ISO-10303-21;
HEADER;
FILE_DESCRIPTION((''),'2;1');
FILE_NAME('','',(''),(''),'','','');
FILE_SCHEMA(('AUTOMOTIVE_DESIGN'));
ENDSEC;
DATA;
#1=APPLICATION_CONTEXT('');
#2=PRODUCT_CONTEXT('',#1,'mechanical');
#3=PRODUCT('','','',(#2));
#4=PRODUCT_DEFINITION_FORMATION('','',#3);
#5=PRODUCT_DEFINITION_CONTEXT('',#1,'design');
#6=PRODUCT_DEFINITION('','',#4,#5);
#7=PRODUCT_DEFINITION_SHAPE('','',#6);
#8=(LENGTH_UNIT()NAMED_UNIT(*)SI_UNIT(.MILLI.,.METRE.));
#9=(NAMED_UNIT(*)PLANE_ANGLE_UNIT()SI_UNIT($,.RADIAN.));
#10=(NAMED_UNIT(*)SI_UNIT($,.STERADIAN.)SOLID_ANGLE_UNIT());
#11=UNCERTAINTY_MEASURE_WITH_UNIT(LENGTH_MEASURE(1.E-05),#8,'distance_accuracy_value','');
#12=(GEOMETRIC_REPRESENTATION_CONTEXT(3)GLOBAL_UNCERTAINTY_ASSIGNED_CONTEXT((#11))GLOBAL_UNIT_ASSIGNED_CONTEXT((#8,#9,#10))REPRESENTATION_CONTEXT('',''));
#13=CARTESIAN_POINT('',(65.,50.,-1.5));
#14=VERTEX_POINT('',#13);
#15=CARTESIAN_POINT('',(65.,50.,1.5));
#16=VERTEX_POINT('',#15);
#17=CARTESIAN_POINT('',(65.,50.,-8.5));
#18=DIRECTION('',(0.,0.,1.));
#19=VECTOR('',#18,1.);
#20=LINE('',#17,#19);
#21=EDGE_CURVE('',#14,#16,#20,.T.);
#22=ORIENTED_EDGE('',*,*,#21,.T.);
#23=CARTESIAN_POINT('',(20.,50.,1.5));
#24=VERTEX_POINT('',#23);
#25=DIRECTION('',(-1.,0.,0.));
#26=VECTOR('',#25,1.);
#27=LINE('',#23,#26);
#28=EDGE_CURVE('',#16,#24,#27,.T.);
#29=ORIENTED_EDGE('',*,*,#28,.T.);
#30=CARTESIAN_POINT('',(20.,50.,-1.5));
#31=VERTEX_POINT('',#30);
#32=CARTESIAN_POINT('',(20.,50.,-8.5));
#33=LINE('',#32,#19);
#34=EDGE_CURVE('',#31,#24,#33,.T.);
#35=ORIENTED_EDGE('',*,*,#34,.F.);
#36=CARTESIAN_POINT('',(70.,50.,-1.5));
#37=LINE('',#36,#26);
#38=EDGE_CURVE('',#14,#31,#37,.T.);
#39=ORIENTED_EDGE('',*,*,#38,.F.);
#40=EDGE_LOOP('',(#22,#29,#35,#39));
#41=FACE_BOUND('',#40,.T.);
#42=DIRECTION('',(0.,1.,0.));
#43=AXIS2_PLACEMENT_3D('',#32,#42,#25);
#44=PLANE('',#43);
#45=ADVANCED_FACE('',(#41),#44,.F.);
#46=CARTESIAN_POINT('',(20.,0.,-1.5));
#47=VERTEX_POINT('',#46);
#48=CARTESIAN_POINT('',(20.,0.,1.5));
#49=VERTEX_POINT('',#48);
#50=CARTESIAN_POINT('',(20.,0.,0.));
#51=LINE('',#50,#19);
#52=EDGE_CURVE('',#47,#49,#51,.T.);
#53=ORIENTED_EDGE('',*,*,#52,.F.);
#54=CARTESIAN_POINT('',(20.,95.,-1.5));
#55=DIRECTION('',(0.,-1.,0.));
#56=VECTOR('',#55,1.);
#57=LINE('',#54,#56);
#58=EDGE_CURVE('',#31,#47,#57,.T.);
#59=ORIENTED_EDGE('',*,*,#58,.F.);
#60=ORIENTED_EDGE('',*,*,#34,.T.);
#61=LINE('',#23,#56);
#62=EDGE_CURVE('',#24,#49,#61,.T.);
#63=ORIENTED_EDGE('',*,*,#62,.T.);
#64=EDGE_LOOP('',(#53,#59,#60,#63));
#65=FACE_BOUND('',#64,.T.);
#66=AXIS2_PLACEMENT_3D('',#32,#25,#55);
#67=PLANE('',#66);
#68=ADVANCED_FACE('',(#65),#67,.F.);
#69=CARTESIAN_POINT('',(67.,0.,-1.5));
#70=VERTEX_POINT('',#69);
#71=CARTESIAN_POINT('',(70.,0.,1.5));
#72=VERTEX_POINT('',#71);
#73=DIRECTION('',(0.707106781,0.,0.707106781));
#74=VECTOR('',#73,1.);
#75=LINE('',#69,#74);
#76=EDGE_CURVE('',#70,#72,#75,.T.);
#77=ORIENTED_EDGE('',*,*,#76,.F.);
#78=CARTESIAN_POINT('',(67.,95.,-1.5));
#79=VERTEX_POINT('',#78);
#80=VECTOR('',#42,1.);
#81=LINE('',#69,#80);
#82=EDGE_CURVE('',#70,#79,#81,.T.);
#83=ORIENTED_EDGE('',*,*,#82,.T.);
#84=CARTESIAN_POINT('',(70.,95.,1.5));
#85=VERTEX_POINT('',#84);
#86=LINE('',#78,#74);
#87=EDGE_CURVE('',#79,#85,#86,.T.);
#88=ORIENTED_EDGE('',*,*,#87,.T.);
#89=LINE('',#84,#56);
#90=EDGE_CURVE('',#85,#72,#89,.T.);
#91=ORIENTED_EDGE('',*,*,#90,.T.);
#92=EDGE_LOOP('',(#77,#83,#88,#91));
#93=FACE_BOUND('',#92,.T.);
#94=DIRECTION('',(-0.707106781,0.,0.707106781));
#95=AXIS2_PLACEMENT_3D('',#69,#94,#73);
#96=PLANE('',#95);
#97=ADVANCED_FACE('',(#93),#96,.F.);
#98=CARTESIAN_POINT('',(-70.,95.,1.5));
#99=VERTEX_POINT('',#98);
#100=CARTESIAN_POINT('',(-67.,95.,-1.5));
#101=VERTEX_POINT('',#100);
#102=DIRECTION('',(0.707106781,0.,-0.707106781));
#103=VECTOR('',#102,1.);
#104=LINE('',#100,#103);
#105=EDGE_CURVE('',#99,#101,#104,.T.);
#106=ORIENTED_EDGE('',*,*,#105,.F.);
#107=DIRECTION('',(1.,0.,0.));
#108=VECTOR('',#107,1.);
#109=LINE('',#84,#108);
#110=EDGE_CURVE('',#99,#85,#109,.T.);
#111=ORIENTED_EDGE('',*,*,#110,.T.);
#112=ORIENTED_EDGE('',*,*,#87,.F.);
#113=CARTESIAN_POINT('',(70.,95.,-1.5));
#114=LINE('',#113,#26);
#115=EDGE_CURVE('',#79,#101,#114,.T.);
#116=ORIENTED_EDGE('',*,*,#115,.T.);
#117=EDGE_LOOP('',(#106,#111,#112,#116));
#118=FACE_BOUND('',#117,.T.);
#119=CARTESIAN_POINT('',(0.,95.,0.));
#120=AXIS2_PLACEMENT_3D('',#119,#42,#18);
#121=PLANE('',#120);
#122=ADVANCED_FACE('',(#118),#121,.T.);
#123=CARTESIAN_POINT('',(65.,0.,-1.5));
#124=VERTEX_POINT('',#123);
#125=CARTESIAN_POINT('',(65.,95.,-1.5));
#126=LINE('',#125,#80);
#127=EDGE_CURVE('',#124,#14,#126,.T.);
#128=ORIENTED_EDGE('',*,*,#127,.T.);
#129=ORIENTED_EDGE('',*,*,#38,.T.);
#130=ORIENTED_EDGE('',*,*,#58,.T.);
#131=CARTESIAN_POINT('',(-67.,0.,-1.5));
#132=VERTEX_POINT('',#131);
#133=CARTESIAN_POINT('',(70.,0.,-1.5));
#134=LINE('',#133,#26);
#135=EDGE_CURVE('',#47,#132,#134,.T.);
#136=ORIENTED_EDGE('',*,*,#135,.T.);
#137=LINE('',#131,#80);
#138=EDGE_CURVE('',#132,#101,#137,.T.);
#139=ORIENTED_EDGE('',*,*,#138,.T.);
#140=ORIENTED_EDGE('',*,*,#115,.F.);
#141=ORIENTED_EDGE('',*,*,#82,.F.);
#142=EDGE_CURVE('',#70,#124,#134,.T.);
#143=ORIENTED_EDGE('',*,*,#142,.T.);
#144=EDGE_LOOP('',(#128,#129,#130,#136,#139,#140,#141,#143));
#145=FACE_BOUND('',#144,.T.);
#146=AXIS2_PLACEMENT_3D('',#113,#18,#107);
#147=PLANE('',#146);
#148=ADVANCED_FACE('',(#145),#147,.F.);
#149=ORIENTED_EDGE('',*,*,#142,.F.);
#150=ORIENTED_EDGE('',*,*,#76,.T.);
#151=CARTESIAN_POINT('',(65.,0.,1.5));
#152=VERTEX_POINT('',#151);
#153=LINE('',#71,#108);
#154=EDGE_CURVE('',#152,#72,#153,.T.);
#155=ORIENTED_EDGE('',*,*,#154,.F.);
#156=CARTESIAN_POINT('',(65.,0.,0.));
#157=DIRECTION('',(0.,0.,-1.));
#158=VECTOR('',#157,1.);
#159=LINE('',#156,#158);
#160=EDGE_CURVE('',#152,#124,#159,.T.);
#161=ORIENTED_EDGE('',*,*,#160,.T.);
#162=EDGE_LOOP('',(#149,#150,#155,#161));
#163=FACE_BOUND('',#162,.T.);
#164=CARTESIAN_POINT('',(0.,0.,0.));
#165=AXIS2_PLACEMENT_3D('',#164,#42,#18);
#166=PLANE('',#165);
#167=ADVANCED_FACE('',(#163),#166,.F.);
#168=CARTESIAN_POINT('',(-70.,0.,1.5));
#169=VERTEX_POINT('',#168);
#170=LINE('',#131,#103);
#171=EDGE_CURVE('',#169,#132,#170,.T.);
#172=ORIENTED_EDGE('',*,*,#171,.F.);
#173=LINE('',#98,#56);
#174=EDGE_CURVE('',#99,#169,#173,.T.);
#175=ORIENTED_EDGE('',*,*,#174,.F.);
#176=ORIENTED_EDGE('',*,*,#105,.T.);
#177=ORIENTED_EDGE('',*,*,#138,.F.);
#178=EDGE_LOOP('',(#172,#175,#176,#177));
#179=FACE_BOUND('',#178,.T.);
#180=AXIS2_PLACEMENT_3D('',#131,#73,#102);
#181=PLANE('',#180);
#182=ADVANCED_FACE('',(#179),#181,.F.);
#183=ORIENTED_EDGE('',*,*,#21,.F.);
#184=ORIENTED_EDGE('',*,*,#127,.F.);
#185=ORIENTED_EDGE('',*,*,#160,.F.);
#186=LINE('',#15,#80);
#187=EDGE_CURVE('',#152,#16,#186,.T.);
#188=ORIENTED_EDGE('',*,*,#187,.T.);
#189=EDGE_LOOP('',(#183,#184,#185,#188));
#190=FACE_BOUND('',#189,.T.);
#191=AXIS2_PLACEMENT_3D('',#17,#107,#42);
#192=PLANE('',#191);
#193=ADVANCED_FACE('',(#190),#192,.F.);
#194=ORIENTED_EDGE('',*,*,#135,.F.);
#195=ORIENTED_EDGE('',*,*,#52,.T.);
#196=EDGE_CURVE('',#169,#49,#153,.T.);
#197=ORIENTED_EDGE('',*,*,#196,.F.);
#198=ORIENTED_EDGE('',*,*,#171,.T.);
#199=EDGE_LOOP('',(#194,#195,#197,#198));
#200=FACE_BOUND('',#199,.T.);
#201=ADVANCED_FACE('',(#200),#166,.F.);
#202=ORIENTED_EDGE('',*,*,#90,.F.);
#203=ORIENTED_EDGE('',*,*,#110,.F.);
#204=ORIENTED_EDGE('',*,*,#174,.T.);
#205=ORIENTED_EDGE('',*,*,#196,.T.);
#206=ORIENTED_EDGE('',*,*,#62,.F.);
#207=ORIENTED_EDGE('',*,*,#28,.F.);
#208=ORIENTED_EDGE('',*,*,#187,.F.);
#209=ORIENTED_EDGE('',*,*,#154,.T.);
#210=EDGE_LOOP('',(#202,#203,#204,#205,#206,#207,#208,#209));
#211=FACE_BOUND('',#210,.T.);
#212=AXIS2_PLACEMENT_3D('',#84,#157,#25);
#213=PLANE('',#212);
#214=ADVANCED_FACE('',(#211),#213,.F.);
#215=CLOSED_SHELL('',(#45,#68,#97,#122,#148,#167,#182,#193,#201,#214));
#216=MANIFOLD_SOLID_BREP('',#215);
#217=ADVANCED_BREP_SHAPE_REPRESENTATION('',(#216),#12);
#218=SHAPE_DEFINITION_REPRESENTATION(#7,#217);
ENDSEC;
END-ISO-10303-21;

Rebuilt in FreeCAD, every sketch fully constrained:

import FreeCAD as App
import Part
import Sketcher


def add_polygon(sketch, points):
    """Adds a closed chain of lines whose ends are joined by coincident constraints."""
    first, n = sketch.GeometryCount, len(points)
    for a, b in zip(points, points[1:] + points[:1]):
        sketch.addGeometry(Part.LineSegment(App.Vector(*a, 0), App.Vector(*b, 0)), False)
    for i in range(n):
        sketch.addConstraint(Sketcher.Constraint("Coincident", first + i, 2, first + (i + 1) % n, 1))

doc = App.newDocument("Part")
body = doc.addObject("PartDesign::Body", "Body")

sketch1 = body.newObject("Sketcher::SketchObject", "Sketch")
sketch1.AttachmentSupport = (doc.getObject("XZ_Plane"), [""])
sketch1.MapMode = "FlatFace"
add_polygon(sketch1, [(-70, -1.5), (-70, 1.5), (70, 1.5), (70, -1.5)])
sketch1.addConstraint([
    Sketcher.Constraint("Vertical", 0),
    Sketcher.Constraint("Horizontal", 1),
    Sketcher.Constraint("Vertical", 2),
    Sketcher.Constraint("Horizontal", 3),
    Sketcher.Constraint("Symmetric", 0, 2, 2, 2, -1, 1),
    Sketcher.Constraint("DistanceX", 1, 1, 1, 2, 140.0),
    Sketcher.Constraint("DistanceY", 0, 1, 0, 2, 3.0),
])
pad1 = body.newObject("PartDesign::Pad", "Pad")
pad1.Profile = sketch1
pad1.Length = 95
pad1.Reversed = True

sketch2 = body.newObject("Sketcher::SketchObject", "Sketch001")
sketch2.AttachmentSupport = (doc.getObject("XZ_Plane"), [""])
sketch2.MapMode = "FlatFace"
sketch2.AttachmentOffset = App.Placement(App.Vector(0, 0, -95), App.Rotation())
add_polygon(sketch2, [(70, 1.5), (70, -1.5), (67, -1.5)])
add_polygon(sketch2, [(-70, -1.5), (-70, 1.5), (-67, -1.5)])
sketch2.addConstraint([
    Sketcher.Constraint("Vertical", 0),
    Sketcher.Constraint("Horizontal", 1),
    Sketcher.Constraint("Vertical", 3),
    Sketcher.Constraint("Horizontal", 5),
    Sketcher.Constraint("Symmetric", 0, 2, 3, 2, -1, 1),
    Sketcher.Constraint("Symmetric", 1, 2, 4, 2, -2),
    Sketcher.Constraint("Perpendicular", 2, 4),
    Sketcher.Constraint("Horizontal", 2, 2, 3, 2),
    Sketcher.Constraint("DistanceX", 1, 2, 1, 1, 3.0),
    Sketcher.Constraint("DistanceX", -1, 1, 0, 2, 70.0),
])
pocket1 = body.newObject("PartDesign::Pocket", "Pocket")
pocket1.Profile = sketch2
pocket1.Length = 95
pocket1.Reversed = True

sketch3 = body.newObject("Sketcher::SketchObject", "Sketch002")
sketch3.AttachmentSupport = (doc.getObject("XY_Plane"), [""])
sketch3.MapMode = "FlatFace"
sketch3.AttachmentOffset = App.Placement(App.Vector(0, 0, 1.5), App.Rotation())
add_polygon(sketch3, [(20, 50), (20, 0), (65, 0), (65, 50)])
sketch3.addConstraint([
    Sketcher.Constraint("Vertical", 0),
    Sketcher.Constraint("Horizontal", 1),
    Sketcher.Constraint("Vertical", 2),
    Sketcher.Constraint("Horizontal", 3),
    Sketcher.Constraint("PointOnObject", 0, 2, -1),
    Sketcher.Constraint("DistanceX", 1, 1, 1, 2, 45.0),
    Sketcher.Constraint("DistanceY", 0, 2, 0, 1, 50.0),
    Sketcher.Constraint("DistanceX", -1, 1, 0, 2, 20.0),
])
pocket2 = body.newObject("PartDesign::Pocket", "Pocket001")
pocket2.Profile = sketch3
pocket2.Length = 10

doc.recompute()
